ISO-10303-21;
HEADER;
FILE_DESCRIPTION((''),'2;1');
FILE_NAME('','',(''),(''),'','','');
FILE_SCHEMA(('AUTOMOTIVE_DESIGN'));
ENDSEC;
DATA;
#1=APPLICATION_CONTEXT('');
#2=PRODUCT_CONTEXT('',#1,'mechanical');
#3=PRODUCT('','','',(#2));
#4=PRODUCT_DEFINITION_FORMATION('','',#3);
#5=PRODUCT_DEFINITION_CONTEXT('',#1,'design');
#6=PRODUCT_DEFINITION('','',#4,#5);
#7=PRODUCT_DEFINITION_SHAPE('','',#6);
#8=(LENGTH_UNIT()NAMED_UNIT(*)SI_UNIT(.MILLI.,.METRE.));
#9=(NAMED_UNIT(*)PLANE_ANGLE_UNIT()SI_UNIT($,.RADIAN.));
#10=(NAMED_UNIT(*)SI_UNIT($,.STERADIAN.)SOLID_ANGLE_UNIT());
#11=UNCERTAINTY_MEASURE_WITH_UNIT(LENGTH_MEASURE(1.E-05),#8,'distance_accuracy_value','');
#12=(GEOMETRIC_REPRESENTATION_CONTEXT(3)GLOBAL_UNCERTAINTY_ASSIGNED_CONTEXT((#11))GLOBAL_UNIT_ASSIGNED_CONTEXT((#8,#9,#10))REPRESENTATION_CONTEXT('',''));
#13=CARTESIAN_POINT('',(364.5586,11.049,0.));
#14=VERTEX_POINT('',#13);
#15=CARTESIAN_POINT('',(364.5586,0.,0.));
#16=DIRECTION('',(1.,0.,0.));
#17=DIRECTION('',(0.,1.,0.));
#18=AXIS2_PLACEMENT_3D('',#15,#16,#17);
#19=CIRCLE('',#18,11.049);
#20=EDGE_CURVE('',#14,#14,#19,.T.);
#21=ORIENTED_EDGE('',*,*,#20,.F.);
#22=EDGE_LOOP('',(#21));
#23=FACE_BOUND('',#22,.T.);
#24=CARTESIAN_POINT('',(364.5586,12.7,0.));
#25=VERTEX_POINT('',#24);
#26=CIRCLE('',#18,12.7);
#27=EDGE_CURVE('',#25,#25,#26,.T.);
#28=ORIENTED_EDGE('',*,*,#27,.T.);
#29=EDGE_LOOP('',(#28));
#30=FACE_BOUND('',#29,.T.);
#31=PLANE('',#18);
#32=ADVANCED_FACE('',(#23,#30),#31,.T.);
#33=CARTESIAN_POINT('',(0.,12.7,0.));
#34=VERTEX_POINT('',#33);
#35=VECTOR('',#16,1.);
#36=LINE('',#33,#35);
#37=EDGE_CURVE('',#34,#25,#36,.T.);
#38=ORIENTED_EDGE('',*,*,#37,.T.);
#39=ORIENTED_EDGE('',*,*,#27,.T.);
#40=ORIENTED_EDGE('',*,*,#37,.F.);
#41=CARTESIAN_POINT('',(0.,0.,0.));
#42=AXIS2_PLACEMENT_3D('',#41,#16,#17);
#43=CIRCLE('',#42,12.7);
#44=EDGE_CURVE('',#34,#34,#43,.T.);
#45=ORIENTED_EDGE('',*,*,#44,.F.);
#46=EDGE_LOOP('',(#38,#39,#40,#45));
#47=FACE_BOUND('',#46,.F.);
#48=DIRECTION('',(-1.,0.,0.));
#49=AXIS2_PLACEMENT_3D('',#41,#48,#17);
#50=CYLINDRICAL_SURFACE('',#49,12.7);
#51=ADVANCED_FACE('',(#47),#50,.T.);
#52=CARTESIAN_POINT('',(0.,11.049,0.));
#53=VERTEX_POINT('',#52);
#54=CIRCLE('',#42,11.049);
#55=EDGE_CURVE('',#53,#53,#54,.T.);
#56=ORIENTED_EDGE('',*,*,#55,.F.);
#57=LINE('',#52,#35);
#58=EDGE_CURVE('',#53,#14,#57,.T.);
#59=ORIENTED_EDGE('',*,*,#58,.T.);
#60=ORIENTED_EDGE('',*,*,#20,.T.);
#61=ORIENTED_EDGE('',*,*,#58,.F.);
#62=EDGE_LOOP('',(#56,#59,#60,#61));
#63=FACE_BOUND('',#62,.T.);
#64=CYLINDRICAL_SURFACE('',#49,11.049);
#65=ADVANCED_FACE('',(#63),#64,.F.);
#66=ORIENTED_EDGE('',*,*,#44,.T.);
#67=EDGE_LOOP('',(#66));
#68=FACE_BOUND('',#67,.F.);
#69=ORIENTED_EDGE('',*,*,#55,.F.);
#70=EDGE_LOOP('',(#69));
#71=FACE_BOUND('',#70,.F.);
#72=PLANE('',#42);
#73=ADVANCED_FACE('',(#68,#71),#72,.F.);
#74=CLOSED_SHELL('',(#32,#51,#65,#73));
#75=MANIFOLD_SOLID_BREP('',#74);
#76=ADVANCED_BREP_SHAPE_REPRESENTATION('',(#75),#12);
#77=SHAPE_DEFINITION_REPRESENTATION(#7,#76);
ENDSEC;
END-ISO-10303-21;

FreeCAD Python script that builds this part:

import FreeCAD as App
import Part
import Sketcher
Q = App.Units.Quantity

doc = App.newDocument("Part")
params = doc.addObject("Spreadsheet::Sheet", "Params")
for row, (alias, value) in enumerate([
    ("sketch1_diameter", "1 in"),
    ("sketch1_diameter2", "0.87 in"),
    ("pad1_length", "14.3527008 in"),
], start=1):
    params.set(f"A{row}", alias)
    params.set(f"B{row}", "=" + value)
    params.setAlias(f"B{row}", alias)

body = doc.addObject("PartDesign::Body", "Body")

# Sketch on YZ plane
sketch1 = body.newObject("Sketcher::SketchObject", "Sketch")
sketch1.AttachmentSupport = (doc.getObject("YZ_Plane"), [""])
sketch1.MapMode = "FlatFace"
sketch1.addGeometry(Part.Circle(App.Vector(0, 0, 0), App.Vector(0, 0, 1), 13), False)
sketch1.addGeometry(Part.Circle(App.Vector(0, 0, 0), App.Vector(0, 0, 1), 11), False)
sketch1.addConstraint(Sketcher.Constraint("Coincident", 0, 3, -1, 1))
sketch1.addConstraint(Sketcher.Constraint("Coincident", 1, 3, -1, 1))
sketch1.addConstraint(Sketcher.Constraint("Diameter", 0, Q("1 in")))
sketch1.addConstraint(Sketcher.Constraint("Diameter", 1, Q("0.87 in")))
sketch1.setExpression("Constraints[2]", "Params.sketch1_diameter")
sketch1.setExpression("Constraints[3]", "Params.sketch1_diameter2")
pad1 = body.newObject("PartDesign::Pad", "Pad")
pad1.Profile = sketch1
pad1.setExpression("Length", "Params.pad1_length")

doc.recompute()
